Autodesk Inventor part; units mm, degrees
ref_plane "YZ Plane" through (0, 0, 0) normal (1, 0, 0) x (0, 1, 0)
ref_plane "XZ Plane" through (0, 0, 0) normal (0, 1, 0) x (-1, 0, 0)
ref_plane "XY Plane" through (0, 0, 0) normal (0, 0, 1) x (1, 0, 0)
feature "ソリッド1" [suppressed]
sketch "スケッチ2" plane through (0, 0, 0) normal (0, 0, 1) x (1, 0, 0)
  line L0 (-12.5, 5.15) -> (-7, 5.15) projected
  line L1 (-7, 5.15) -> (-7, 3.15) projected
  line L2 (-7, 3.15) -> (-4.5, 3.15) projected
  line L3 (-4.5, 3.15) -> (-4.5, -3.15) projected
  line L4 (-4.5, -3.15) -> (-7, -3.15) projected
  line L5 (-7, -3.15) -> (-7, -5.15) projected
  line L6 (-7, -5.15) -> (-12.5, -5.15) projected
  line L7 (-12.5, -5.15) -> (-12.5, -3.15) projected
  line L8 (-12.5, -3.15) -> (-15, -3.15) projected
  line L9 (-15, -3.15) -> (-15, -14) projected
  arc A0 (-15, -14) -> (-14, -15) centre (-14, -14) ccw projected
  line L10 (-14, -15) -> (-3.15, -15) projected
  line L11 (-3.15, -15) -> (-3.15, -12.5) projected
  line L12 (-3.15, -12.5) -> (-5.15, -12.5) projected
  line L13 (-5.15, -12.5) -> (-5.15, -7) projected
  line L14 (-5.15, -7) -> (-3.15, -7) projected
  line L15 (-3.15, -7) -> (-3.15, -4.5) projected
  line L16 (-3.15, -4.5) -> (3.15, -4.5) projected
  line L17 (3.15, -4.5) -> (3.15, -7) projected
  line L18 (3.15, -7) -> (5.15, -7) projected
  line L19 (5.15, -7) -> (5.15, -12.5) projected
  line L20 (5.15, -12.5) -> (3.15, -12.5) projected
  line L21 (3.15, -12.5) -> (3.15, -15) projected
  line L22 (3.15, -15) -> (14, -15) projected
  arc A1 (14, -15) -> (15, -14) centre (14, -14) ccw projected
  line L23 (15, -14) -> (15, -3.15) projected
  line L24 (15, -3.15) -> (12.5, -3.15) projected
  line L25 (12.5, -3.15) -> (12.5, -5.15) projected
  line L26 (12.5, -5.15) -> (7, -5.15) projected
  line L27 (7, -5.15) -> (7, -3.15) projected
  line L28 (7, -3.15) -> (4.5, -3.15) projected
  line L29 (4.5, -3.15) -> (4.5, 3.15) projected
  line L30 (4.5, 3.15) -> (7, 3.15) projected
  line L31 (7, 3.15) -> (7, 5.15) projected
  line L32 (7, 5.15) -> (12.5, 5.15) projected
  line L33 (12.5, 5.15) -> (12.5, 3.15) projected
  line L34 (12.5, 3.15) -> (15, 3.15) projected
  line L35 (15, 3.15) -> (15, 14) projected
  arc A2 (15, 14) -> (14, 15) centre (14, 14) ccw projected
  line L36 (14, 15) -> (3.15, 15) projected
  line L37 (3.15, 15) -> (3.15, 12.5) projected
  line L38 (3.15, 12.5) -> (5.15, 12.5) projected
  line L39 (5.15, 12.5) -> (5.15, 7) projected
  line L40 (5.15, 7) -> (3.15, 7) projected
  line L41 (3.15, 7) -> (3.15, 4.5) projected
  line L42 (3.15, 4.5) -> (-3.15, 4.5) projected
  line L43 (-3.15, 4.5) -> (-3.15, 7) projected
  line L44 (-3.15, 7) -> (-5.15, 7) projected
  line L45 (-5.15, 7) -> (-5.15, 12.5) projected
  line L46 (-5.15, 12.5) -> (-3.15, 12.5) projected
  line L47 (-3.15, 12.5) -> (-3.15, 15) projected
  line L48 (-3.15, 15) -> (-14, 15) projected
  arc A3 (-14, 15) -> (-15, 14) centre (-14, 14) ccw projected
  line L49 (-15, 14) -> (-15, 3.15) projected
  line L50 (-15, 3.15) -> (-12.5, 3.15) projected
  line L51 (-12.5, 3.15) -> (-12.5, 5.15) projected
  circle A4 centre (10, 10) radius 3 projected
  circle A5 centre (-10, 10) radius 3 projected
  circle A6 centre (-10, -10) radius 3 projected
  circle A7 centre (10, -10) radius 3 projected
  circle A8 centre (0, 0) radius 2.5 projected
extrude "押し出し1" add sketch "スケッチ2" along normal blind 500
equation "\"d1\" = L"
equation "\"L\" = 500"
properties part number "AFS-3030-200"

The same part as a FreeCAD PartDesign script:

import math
import FreeCAD as App
import Part
import Sketcher
from FreeCAD import Vector
Q = App.Units.Quantity

doc = App.newDocument("Part")
body = doc.addObject("PartDesign::Body", "Body")

sketch1 = body.newObject("Sketcher::SketchObject", "Sketch")
sketch1.AttachmentSupport = (doc.getObject("XY_Plane"), [""])
sketch1.MapMode = "FlatFace"
sketch1.addGeometry([
    Part.LineSegment(Vector(-12.5, 3.15, 0), Vector(-12.5, 5.15, 0)),
    Part.LineSegment(Vector(-12.5, 5.15, 0), Vector(-7, 5.15, 0)),
    Part.LineSegment(Vector(-7, 5.15, 0), Vector(-7, 3.15, 0)),
    Part.LineSegment(Vector(-7, 3.15, 0), Vector(-4.5, 3.15, 0)),
    Part.LineSegment(Vector(-4.5, 3.15, 0), Vector(-4.5, -3.15, 0)),
    Part.LineSegment(Vector(-4.5, -3.15, 0), Vector(-7, -3.15, 0)),
    Part.LineSegment(Vector(-7, -3.15, 0), Vector(-7, -5.15, 0)),
    Part.LineSegment(Vector(-7, -5.15, 0), Vector(-12.5, -5.15, 0)),
    Part.LineSegment(Vector(-12.5, -5.15, 0), Vector(-12.5, -3.15, 0)),
    Part.LineSegment(Vector(-12.5, -3.15, 0), Vector(-15, -3.15, 0)),
    Part.LineSegment(Vector(-15, -3.15, 0), Vector(-15, -14, 0)),
    Part.ArcOfCircle(Part.Circle(Vector(-14, -14, 0), Vector(0, 0, 1), 1), math.radians(180), math.radians(270)),
    Part.LineSegment(Vector(-14, -15, 0), Vector(-3.15, -15, 0)),
    Part.LineSegment(Vector(-3.15, -15, 0), Vector(-3.15, -12.5, 0)),
    Part.LineSegment(Vector(-3.15, -12.5, 0), Vector(-5.15, -12.5, 0)),
    Part.LineSegment(Vector(-5.15, -12.5, 0), Vector(-5.15, -7, 0)),
    Part.LineSegment(Vector(-5.15, -7, 0), Vector(-3.15, -7, 0)),
    Part.LineSegment(Vector(-3.15, -7, 0), Vector(-3.15, -4.5, 0)),
    Part.LineSegment(Vector(-3.15, -4.5, 0), Vector(3.15, -4.5, 0)),
    Part.LineSegment(Vector(3.15, -4.5, 0), Vector(3.15, -7, 0)),
    Part.LineSegment(Vector(3.15, -7, 0), Vector(5.15, -7, 0)),
    Part.LineSegment(Vector(5.15, -7, 0), Vector(5.15, -12.5, 0)),
    Part.LineSegment(Vector(5.15, -12.5, 0), Vector(3.15, -12.5, 0)),
    Part.LineSegment(Vector(3.15, -12.5, 0), Vector(3.15, -15, 0)),
    Part.LineSegment(Vector(3.15, -15, 0), Vector(14, -15, 0)),
    Part.ArcOfCircle(Part.Circle(Vector(14, -14, 0), Vector(0, 0, 1), 1), math.radians(-90), math.radians(0)),
    Part.LineSegment(Vector(15, -14, 0), Vector(15, -3.15, 0)),
    Part.LineSegment(Vector(15, -3.15, 0), Vector(12.5, -3.15, 0)),
    Part.LineSegment(Vector(12.5, -3.15, 0), Vector(12.5, -5.15, 0)),
    Part.LineSegment(Vector(12.5, -5.15, 0), Vector(7, -5.15, 0)),
    Part.LineSegment(Vector(7, -5.15, 0), Vector(7, -3.15, 0)),
    Part.LineSegment(Vector(7, -3.15, 0), Vector(4.5, -3.15, 0)),
    Part.LineSegment(Vector(4.5, -3.15, 0), Vector(4.5, 3.15, 0)),
    Part.LineSegment(Vector(4.5, 3.15, 0), Vector(7, 3.15, 0)),
    Part.LineSegment(Vector(7, 3.15, 0), Vector(7, 5.15, 0)),
    Part.LineSegment(Vector(7, 5.15, 0), Vector(12.5, 5.15, 0)),
    Part.LineSegment(Vector(12.5, 5.15, 0), Vector(12.5, 3.15, 0)),
    Part.LineSegment(Vector(12.5, 3.15, 0), Vector(15, 3.15, 0)),
    Part.LineSegment(Vector(15, 3.15, 0), Vector(15, 14, 0)),
    Part.ArcOfCircle(Part.Circle(Vector(14, 14, 0), Vector(0, 0, 1), 1), math.radians(0), math.radians(90)),
    Part.LineSegment(Vector(14, 15, 0), Vector(3.15, 15, 0)),
    Part.LineSegment(Vector(3.15, 15, 0), Vector(3.15, 12.5, 0)),
    Part.LineSegment(Vector(3.15, 12.5, 0), Vector(5.15, 12.5, 0)),
    Part.LineSegment(Vector(5.15, 12.5, 0), Vector(5.15, 7, 0)),
    Part.LineSegment(Vector(5.15, 7, 0), Vector(3.15, 7, 0)),
    Part.LineSegment(Vector(3.15, 7, 0), Vector(3.15, 4.5, 0)),
    Part.LineSegment(Vector(3.15, 4.5, 0), Vector(-3.15, 4.5, 0)),
    Part.LineSegment(Vector(-3.15, 4.5, 0), Vector(-3.15, 7, 0)),
    Part.LineSegment(Vector(-3.15, 7, 0), Vector(-5.15, 7, 0)),
    Part.LineSegment(Vector(-5.15, 7, 0), Vector(-5.15, 12.5, 0)),
    Part.LineSegment(Vector(-5.15, 12.5, 0), Vector(-3.15, 12.5, 0)),
    Part.LineSegment(Vector(-3.15, 12.5, 0), Vector(-3.15, 15, 0)),
    Part.LineSegment(Vector(-3.15, 15, 0), Vector(-14, 15, 0)),
    Part.ArcOfCircle(Part.Circle(Vector(-14, 14, 0), Vector(0, 0, 1), 1), math.radians(90), math.radians(180)),
    Part.LineSegment(Vector(-15, 14, 0), Vector(-15, 3.15, 0)),
    Part.LineSegment(Vector(-15, 3.15, 0), Vector(-12.5, 3.15, 0)),
    Part.Circle(Vector(-10, -10, 0), Vector(0, 0, 1), 3),
    Part.Circle(Vector(10, -10, 0), Vector(0, 0, 1), 3),
    Part.Circle(Vector(-10, 10, 0), Vector(0, 0, 1), 3),
    Part.Circle(Vector(0, 0, 0), Vector(0, 0, 1), 2.5),
    Part.Circle(Vector(10, 10, 0), Vector(0, 0, 1), 3),
], False)
sketch1.addConstraint([
    Sketcher.Constraint("Coincident", 0, 2, 1, 1),
    Sketcher.Constraint("Coincident", 1, 2, 2, 1),
    Sketcher.Constraint("Coincident", 2, 2, 3, 1),
    Sketcher.Constraint("Coincident", 3, 2, 4, 1),
    Sketcher.Constraint("Coincident", 4, 2, 5, 1),
    Sketcher.Constraint("Coincident", 5, 2, 6, 1),
    Sketcher.Constraint("Coincident", 6, 2, 7, 1),
    Sketcher.Constraint("Coincident", 7, 2, 8, 1),
    Sketcher.Constraint("Coincident", 8, 2, 9, 1),
    Sketcher.Constraint("Coincident", 9, 2, 10, 1),
    Sketcher.Constraint("Tangent", 10, 2, 11, 1),
    Sketcher.Constraint("Tangent", 11, 2, 12, 1),
    Sketcher.Constraint("Coincident", 12, 2, 13, 1),
    Sketcher.Constraint("Coincident", 13, 2, 14, 1),
    Sketcher.Constraint("Coincident", 14, 2, 15, 1),
    Sketcher.Constraint("Coincident", 15, 2, 16, 1),
    Sketcher.Constraint("Coincident", 16, 2, 17, 1),
    Sketcher.Constraint("Coincident", 17, 2, 18, 1),
    Sketcher.Constraint("Coincident", 18, 2, 19, 1),
    Sketcher.Constraint("Coincident", 19, 2, 20, 1),
    Sketcher.Constraint("Coincident", 20, 2, 21, 1),
    Sketcher.Constraint("Coincident", 21, 2, 22, 1),
    Sketcher.Constraint("Coincident", 22, 2, 23, 1),
    Sketcher.Constraint("Coincident", 23, 2, 24, 1),
    Sketcher.Constraint("Tangent", 24, 2, 25, 1),
    Sketcher.Constraint("Tangent", 25, 2, 26, 1),
    Sketcher.Constraint("Coincident", 26, 2, 27, 1),
    Sketcher.Constraint("Coincident", 27, 2, 28, 1),
    Sketcher.Constraint("Coincident", 28, 2, 29, 1),
    Sketcher.Constraint("Coincident", 29, 2, 30, 1),
    Sketcher.Constraint("Coincident", 30, 2, 31, 1),
    Sketcher.Constraint("Coincident", 31, 2, 32, 1),
    Sketcher.Constraint("Coincident", 32, 2, 33, 1),
    Sketcher.Constraint("Coincident", 33, 2, 34, 1),
    Sketcher.Constraint("Coincident", 34, 2, 35, 1),
    Sketcher.Constraint("Coincident", 35, 2, 36, 1),
    Sketcher.Constraint("Coincident", 36, 2, 37, 1),
    Sketcher.Constraint("Coincident", 37, 2, 38, 1),
    Sketcher.Constraint("Tangent", 38, 2, 39, 1),
    Sketcher.Constraint("Tangent", 39, 2, 40, 1),
    Sketcher.Constraint("Coincident", 40, 2, 41, 1),
    Sketcher.Constraint("Coincident", 41, 2, 42, 1),
    Sketcher.Constraint("Coincident", 42, 2, 43, 1),
    Sketcher.Constraint("Coincident", 43, 2, 44, 1),
    Sketcher.Constraint("Coincident", 44, 2, 45, 1),
    Sketcher.Constraint("Coincident", 45, 2, 46, 1),
    Sketcher.Constraint("Coincident", 46, 2, 47, 1),
    Sketcher.Constraint("Coincident", 47, 2, 48, 1),
    Sketcher.Constraint("Coincident", 48, 2, 49, 1),
    Sketcher.Constraint("Coincident", 49, 2, 50, 1),
    Sketcher.Constraint("Coincident", 50, 2, 51, 1),
    Sketcher.Constraint("Coincident", 51, 2, 52, 1),
    Sketcher.Constraint("Tangent", 52, 2, 53, 1),
    Sketcher.Constraint("Tangent", 53, 2, 54, 1),
    Sketcher.Constraint("Coincident", 54, 2, 55, 1),
    Sketcher.Constraint("Coincident", 55, 2, 0, 1),
    Sketcher.Constraint("Vertical", 0),
    Sketcher.Constraint("Horizontal", 1),
    Sketcher.Constraint("Vertical", 2),
    Sketcher.Constraint("Horizontal", 3),
    Sketcher.Constraint("Vertical", 4),
    Sketcher.Constraint("Horizontal", 5),
    Sketcher.Constraint("Vertical", 6),
    Sketcher.Constraint("Horizontal", 7),
    Sketcher.Constraint("Vertical", 8),
    Sketcher.Constraint("Horizontal", 9),
    Sketcher.Constraint("Vertical", 10),
    Sketcher.Constraint("Horizontal", 12),
    Sketcher.Constraint("Vertical", 13),
    Sketcher.Constraint("Horizontal", 14),
    Sketcher.Constraint("Vertical", 15),
    Sketcher.Constraint("Horizontal", 16),
    Sketcher.Constraint("Vertical", 17),
    Sketcher.Constraint("Horizontal", 18),
    Sketcher.Constraint("Vertical", 19),
    Sketcher.Constraint("Horizontal", 20),
    Sketcher.Constraint("Vertical", 21),
    Sketcher.Constraint("Horizontal", 22),
    Sketcher.Constraint("Vertical", 23),
    Sketcher.Constraint("Horizontal", 24),
    Sketcher.Constraint("Vertical", 26),
    Sketcher.Constraint("Horizontal", 27),
    Sketcher.Constraint("Vertical", 28),
    Sketcher.Constraint("Horizontal", 29),
    Sketcher.Constraint("Vertical", 30),
    Sketcher.Constraint("Horizontal", 31),
    Sketcher.Constraint("Vertical", 32),
    Sketcher.Constraint("Horizontal", 33),
    Sketcher.Constraint("Vertical", 34),
    Sketcher.Constraint("Horizontal", 35),
    Sketcher.Constraint("Vertical", 36),
    Sketcher.Constraint("Horizontal", 37),
    Sketcher.Constraint("Vertical", 38),
    Sketcher.Constraint("Horizontal", 40),
    Sketcher.Constraint("Vertical", 41),
    Sketcher.Constraint("Horizontal", 42),
    Sketcher.Constraint("Vertical", 43),
    Sketcher.Constraint("Horizontal", 44),
    Sketcher.Constraint("Vertical", 45),
    Sketcher.Constraint("Horizontal", 46),
    Sketcher.Constraint("Vertical", 47),
    Sketcher.Constraint("Horizontal", 48),
    Sketcher.Constraint("Vertical", 49),
    Sketcher.Constraint("Horizontal", 50),
    Sketcher.Constraint("Vertical", 51),
    Sketcher.Constraint("Horizontal", 52),
    Sketcher.Constraint("Vertical", 54),
    Sketcher.Constraint("Horizontal", 55),
    Sketcher.Constraint("Coincident", 59, 3, -1, 1),
    Sketcher.Constraint("Equal", 11, 25),
    Sketcher.Constraint("Equal", 25, 39),
    Sketcher.Constraint("Equal", 39, 53),
    Sketcher.Constraint("Equal", 56, 57),
    Sketcher.Constraint("Equal", 57, 58),
    Sketcher.Constraint("Equal", 58, 60),
    Sketcher.Constraint("Symmetric", 11, 3, 39, 3, -1, 1),
    Sketcher.Constraint("Symmetric", 25, 3, 53, 3, -1, 1),
    Sketcher.Constraint("Symmetric", 57, 3, 58, 3, -1, 1),
    Sketcher.Constraint("Symmetric", 56, 3, 60, 3, -1, 1),
    Sketcher.Constraint("Symmetric", 0, 2, 28, 2, -1, 1),
    Sketcher.Constraint("Symmetric", 2, 2, 30, 2, -1, 1),
    Sketcher.Constraint("Symmetric", 4, 2, 32, 2, -1, 1),
    Sketcher.Constraint("Symmetric", 6, 2, 34, 2, -1, 1),
    Sketcher.Constraint("Symmetric", 8, 2, 36, 2, -1, 1),
    Sketcher.Constraint("Symmetric", 13, 2, 41, 2, -1, 1),
    Sketcher.Constraint("Symmetric", 15, 2, 43, 2, -1, 1),
    Sketcher.Constraint("Symmetric", 17, 2, 45, 2, -1, 1),
    Sketcher.Constraint("Symmetric", 19, 2, 47, 2, -1, 1),
    Sketcher.Constraint("Symmetric", 21, 2, 49, 2, -1, 1),
    Sketcher.Constraint("Symmetric", 11, 3, 25, 3, -2),
    Sketcher.Constraint("Symmetric", 56, 3, 57, 3, -2),
    Sketcher.Constraint("Symmetric", 16, 2, 19, 2, -2),
    Sketcher.Constraint("Symmetric", 14, 2, 21, 2, -2),
    Sketcher.Constraint("Symmetric", 8, 2, 27, 2, -2),
    Sketcher.Constraint("Symmetric", 6, 2, 29, 2, -2),
    Sketcher.Constraint("Horizontal", 5, 2, 8, 2),
    Sketcher.Constraint("Horizontal", 27, 2, 30, 2),
    Sketcher.Constraint("Horizontal", 37, 2, 54, 2),
    Sketcher.Constraint("Vertical", 13, 2, 16, 2),
    Sketcher.Constraint("Vertical", 19, 2, 22, 2),
    Sketcher.Constraint("Vertical", 47, 2, 50, 2),
    Sketcher.Constraint("Equal", 5, 9),
    Sketcher.Constraint("Equal", 50, 0),
    Sketcher.Constraint("Equal", 46, 4),
    Sketcher.Constraint("Equal", 52, 10),
    Sketcher.Constraint("Equal", 55, 13),
    Sketcher.Constraint("Equal", 35, 15),
    Sketcher.Constraint("Equal", 13, 17),
    Sketcher.Constraint("Diameter", 56, Q("6 mm")),
    Sketcher.Constraint("Diameter", 59, Q("5 mm")),
    Sketcher.Constraint("Radius", 11, Q("1 mm")),
    Sketcher.Constraint("DistanceX", 14, 2, 14, 1, Q("2 mm")),
    Sketcher.Constraint("DistanceX", 1, 1, 1, 2, Q("5.5 mm")),
    Sketcher.Constraint("DistanceX", 3, 1, 3, 2, Q("2.5 mm")),
    Sketcher.Constraint("DistanceX", 18, 1, 18, 2, Q("6.3 mm")),
    Sketcher.Constraint("DistanceX", 11, 3, -1, 1, Q("14 mm")),
    Sketcher.Constraint("DistanceX", 56, 3, -1, 1, Q("10 mm")),
    Sketcher.Constraint("DistanceY", 56, 3, -1, 1, Q("10 mm")),
])
pad1 = body.newObject("PartDesign::Pad", "Pad")
pad1.Profile = sketch1
pad1.Length = 500

doc.recompute()
